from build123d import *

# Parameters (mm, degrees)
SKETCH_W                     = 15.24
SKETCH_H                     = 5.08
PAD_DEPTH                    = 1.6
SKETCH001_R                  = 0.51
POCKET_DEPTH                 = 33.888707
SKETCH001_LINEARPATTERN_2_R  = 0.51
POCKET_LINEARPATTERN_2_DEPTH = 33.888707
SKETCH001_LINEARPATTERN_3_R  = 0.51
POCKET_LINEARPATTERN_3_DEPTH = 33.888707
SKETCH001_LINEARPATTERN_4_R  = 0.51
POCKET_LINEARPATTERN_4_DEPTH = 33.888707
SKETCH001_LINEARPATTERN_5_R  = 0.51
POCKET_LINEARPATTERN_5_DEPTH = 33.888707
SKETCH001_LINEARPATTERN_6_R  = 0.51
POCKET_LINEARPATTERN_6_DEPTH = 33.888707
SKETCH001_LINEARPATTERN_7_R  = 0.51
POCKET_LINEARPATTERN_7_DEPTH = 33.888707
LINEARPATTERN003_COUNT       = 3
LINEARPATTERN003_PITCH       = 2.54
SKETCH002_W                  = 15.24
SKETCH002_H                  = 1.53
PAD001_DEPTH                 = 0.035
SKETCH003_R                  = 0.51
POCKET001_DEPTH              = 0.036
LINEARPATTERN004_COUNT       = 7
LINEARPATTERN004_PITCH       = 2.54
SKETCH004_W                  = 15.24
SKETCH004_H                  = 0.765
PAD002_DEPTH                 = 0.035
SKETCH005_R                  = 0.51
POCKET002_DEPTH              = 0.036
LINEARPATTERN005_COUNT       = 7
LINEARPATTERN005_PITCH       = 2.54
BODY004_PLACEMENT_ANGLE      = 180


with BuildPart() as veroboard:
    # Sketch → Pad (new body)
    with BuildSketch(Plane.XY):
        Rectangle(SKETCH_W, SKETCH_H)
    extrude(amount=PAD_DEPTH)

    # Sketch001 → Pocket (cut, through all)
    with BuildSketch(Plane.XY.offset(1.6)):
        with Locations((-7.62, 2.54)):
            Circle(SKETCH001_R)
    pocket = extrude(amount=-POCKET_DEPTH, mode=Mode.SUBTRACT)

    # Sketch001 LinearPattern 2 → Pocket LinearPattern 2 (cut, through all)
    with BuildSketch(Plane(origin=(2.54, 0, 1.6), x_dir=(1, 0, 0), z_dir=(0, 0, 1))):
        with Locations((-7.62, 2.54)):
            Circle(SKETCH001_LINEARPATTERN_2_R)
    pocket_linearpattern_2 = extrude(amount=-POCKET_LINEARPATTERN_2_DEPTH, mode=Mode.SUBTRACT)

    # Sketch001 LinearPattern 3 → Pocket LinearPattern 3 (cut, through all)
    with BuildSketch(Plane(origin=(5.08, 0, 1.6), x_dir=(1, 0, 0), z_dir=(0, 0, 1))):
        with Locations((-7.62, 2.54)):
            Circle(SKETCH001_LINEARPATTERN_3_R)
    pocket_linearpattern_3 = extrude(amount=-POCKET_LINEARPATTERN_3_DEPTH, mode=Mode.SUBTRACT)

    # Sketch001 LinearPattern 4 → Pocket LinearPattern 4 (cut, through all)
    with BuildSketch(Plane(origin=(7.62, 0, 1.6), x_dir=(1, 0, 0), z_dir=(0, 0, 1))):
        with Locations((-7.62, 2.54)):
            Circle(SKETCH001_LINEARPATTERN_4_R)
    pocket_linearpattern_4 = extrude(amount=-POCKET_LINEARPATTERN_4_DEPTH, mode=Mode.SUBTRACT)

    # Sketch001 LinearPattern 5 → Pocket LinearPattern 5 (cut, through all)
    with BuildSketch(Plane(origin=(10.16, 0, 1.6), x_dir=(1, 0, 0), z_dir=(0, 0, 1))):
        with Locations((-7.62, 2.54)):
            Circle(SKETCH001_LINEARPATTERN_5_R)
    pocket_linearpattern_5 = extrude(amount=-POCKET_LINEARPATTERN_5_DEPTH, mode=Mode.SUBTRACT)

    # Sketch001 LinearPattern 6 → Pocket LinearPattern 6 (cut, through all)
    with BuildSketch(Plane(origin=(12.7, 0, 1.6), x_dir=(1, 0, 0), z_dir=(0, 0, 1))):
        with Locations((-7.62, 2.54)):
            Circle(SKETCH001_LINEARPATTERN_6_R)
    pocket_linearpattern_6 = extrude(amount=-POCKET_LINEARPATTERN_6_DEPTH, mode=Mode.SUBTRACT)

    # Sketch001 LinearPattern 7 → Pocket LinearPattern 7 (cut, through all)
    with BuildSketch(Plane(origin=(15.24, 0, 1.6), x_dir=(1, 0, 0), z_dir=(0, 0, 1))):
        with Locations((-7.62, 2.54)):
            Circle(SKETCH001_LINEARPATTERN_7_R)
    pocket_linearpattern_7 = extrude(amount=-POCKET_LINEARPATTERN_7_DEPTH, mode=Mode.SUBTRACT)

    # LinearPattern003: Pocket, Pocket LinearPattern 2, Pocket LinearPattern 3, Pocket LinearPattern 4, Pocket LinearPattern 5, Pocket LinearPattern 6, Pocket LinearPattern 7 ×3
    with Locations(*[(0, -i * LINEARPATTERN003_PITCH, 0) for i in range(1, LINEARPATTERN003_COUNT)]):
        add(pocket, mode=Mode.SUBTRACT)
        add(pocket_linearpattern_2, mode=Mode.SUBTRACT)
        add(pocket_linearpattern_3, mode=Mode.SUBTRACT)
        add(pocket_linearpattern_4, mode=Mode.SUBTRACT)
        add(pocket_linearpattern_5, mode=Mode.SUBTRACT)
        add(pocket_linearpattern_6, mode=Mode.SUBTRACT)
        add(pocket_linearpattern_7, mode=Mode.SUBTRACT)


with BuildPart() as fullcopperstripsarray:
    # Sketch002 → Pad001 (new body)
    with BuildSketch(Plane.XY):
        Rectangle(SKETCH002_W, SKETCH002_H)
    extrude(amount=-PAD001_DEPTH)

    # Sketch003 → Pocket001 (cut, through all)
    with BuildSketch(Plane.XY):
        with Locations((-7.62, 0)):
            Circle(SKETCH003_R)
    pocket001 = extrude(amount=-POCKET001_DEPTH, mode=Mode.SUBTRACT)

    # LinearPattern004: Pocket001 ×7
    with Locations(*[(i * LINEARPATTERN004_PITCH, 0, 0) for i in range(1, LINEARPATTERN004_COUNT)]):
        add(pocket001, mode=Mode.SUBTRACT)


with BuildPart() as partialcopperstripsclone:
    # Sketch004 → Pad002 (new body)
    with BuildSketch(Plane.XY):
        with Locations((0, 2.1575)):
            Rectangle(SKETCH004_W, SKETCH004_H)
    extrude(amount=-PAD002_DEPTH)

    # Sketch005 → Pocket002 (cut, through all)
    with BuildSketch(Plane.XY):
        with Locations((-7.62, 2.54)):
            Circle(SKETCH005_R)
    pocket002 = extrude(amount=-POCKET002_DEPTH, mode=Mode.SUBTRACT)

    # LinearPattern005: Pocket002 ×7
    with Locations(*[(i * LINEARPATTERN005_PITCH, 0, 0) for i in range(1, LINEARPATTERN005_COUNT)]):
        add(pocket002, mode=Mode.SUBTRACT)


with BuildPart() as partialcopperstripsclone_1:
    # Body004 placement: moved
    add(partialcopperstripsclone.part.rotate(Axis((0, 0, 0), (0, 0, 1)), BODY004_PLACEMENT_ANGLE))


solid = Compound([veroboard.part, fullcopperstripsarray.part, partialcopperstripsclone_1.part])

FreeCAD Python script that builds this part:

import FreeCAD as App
import Part
import Sketcher

V = App.Vector
Q = App.Units.Quantity


def add_polygon(sketch, points):
    """Adds a closed chain of lines whose ends are joined by coincident constraints."""
    first, n = sketch.GeometryCount, len(points)
    for a, b in zip(points, points[1:] + points[:1]):
        sketch.addGeometry(Part.LineSegment(App.Vector(*a, 0), App.Vector(*b, 0)), False)
    for i in range(n):
        sketch.addConstraint(Sketcher.Constraint("Coincident", first + i, 2, first + (i + 1) % n, 1))

doc = App.newDocument("Part")
params = doc.addObject("Spreadsheet::Sheet", "Params")
for row, (alias, value) in enumerate([
    ("sketch1_width", "0.6 in"),
    ("sketch1_height", "0.2 in"),
    ("pad1_length", "1.6 mm"),
    ("linearpattern_pitch", "0.1 in"),
    ("sketch9_width", "0.6 in"),
    ("pad2_length", "0.035 mm"),
    ("linearpattern2_pitch", "0.1 in"),
    ("sketch11_width", "0.6 in"),
    ("pad3_length", "0.035 mm"),
    ("linearpattern3_pitch", "0.1 in"),
], start=1):
    params.set(f"A{row}", alias)
    params.set(f"B{row}", "=" + value)
    params.setAlias(f"B{row}", alias)

body = doc.addObject("PartDesign::Body", "Body")

sketch1 = body.newObject("Sketcher::SketchObject", "Sketch")
sketch1.AttachmentSupport = (doc.getObject("XY_Plane"), [""])
sketch1.MapMode = "FlatFace"
add_polygon(sketch1, [(-7.62, 2.54), (-7.62, -2.54), (7.62, -2.54), (7.62, 2.54)])
sketch1.addConstraint([
    Sketcher.Constraint("Vertical", 0),
    Sketcher.Constraint("Horizontal", 1),
    Sketcher.Constraint("Vertical", 2),
    Sketcher.Constraint("Horizontal", 3),
    Sketcher.Constraint("Symmetric", 0, 2, 2, 2, -1, 1),
    Sketcher.Constraint("DistanceX", 1, 1, 1, 2, Q("0.6 in")),
    Sketcher.Constraint("DistanceY", 0, 2, 0, 1, Q("0.2 in")),
])
sketch1.setExpression("Constraints[9]", "Params.sketch1_width")
sketch1.setExpression("Constraints[10]", "Params.sketch1_height")
pad1 = body.newObject("PartDesign::Pad", "Pad")
pad1.Profile = sketch1
pad1.setExpression("Length", "Params.pad1_length")

sketch2 = body.newObject("Sketcher::SketchObject", "Sketch001")
sketch2.AttachmentSupport = (doc.getObject("XY_Plane"), [""])
sketch2.MapMode = "FlatFace"
sketch2.AttachmentOffset = App.Placement(V(0, 0, 1.6), App.Rotation())
sketch2.addGeometry(Part.Circle(V(-7.62, 2.54, 0), V(0, 0, 1), 0.51), False)
sketch2.addConstraint([
    Sketcher.Constraint("DistanceX", 0, 3, -1, 1, Q("0.3 in")),
    Sketcher.Constraint("DistanceY", -1, 1, 0, 3, Q("0.1 in")),
    Sketcher.Constraint("Diameter", 0, Q("1.02 mm")),
])
pocket1 = body.newObject("PartDesign::Pocket", "Pocket")
pocket1.Profile = sketch2
pocket1.Type = "ThroughAll"

sketch3 = body.newObject("Sketcher::SketchObject", "Sketch002")
sketch3.AttachmentSupport = (doc.getObject("XY_Plane"), [""])
sketch3.MapMode = "FlatFace"
sketch3.AttachmentOffset = App.Placement(V(0, 0, 1.6), App.Rotation())
sketch3.addGeometry(Part.Circle(V(-5.08, 2.54, 0), V(0, 0, 1), 0.51), False)
sketch3.addConstraint([
    Sketcher.Constraint("DistanceX", 0, 3, -1, 1, Q("0.2 in")),
    Sketcher.Constraint("DistanceY", -1, 1, 0, 3, Q("0.1 in")),
    Sketcher.Constraint("Diameter", 0, Q("1.02 mm")),
])
pocket2 = body.newObject("PartDesign::Pocket", "Pocket001")
pocket2.Profile = sketch3
pocket2.Type = "ThroughAll"

sketch4 = body.newObject("Sketcher::SketchObject", "Sketch003")
sketch4.AttachmentSupport = (doc.getObject("XY_Plane"), [""])
sketch4.MapMode = "FlatFace"
sketch4.AttachmentOffset = App.Placement(V(0, 0, 1.6), App.Rotation())
sketch4.addGeometry(Part.Circle(V(-2.54, 2.54, 0), V(0, 0, 1), 0.51), False)
sketch4.addConstraint([
    Sketcher.Constraint("DistanceX", 0, 3, -1, 1, Q("0.1 in")),
    Sketcher.Constraint("DistanceY", -1, 1, 0, 3, Q("0.1 in")),
    Sketcher.Constraint("Diameter", 0, Q("1.02 mm")),
])
pocket3 = body.newObject("PartDesign::Pocket", "Pocket002")
pocket3.Profile = sketch4
pocket3.Type = "ThroughAll"

sketch5 = body.newObject("Sketcher::SketchObject", "Sketch004")
sketch5.AttachmentSupport = (doc.getObject("XY_Plane"), [""])
sketch5.MapMode = "FlatFace"
sketch5.AttachmentOffset = App.Placement(V(0, 0, 1.6), App.Rotation())
sketch5.addGeometry(Part.Circle(V(0, 2.54, 0), V(0, 0, 1), 0.51), False)
sketch5.addConstraint([
    Sketcher.Constraint("PointOnObject", 0, 3, -2),
    Sketcher.Constraint("DistanceY", -1, 1, 0, 3, Q("0.1 in")),
    Sketcher.Constraint("Diameter", 0, Q("1.02 mm")),
])
pocket4 = body.newObject("PartDesign::Pocket", "Pocket003")
pocket4.Profile = sketch5
pocket4.Type = "ThroughAll"

sketch6 = body.newObject("Sketcher::SketchObject", "Sketch005")
sketch6.AttachmentSupport = (doc.getObject("XY_Plane"), [""])
sketch6.MapMode = "FlatFace"
sketch6.AttachmentOffset = App.Placement(V(0, 0, 1.6), App.Rotation())
sketch6.addGeometry(Part.Circle(V(2.54, 2.54, 0), V(0, 0, 1), 0.51), False)
sketch6.addConstraint([
    Sketcher.Constraint("DistanceX", -1, 1, 0, 3, Q("0.1 in")),
    Sketcher.Constraint("DistanceY", -1, 1, 0, 3, Q("0.1 in")),
    Sketcher.Constraint("Diameter", 0, Q("1.02 mm")),
])
pocket5 = body.newObject("PartDesign::Pocket", "Pocket004")
pocket5.Profile = sketch6
pocket5.Type = "ThroughAll"

sketch7 = body.newObject("Sketcher::SketchObject", "Sketch006")
sketch7.AttachmentSupport = (doc.getObject("XY_Plane"), [""])
sketch7.MapMode = "FlatFace"
sketch7.AttachmentOffset = App.Placement(V(0, 0, 1.6), App.Rotation())
sketch7.addGeometry(Part.Circle(V(5.08, 2.54, 0), V(0, 0, 1), 0.51), False)
sketch7.addConstraint([
    Sketcher.Constraint("DistanceX", -1, 1, 0, 3, Q("0.2 in")),
    Sketcher.Constraint("DistanceY", -1, 1, 0, 3, Q("0.1 in")),
    Sketcher.Constraint("Diameter", 0, Q("1.02 mm")),
])
pocket6 = body.newObject("PartDesign::Pocket", "Pocket005")
pocket6.Profile = sketch7
pocket6.Type = "ThroughAll"

sketch8 = body.newObject("Sketcher::SketchObject", "Sketch007")
sketch8.AttachmentSupport = (doc.getObject("XY_Plane"), [""])
sketch8.MapMode = "FlatFace"
sketch8.AttachmentOffset = App.Placement(V(0, 0, 1.6), App.Rotation())
sketch8.addGeometry(Part.Circle(V(7.62, 2.54, 0), V(0, 0, 1), 0.51), False)
sketch8.addConstraint([
    Sketcher.Constraint("DistanceX", -1, 1, 0, 3, Q("0.3 in")),
    Sketcher.Constraint("DistanceY", -1, 1, 0, 3, Q("0.1 in")),
    Sketcher.Constraint("Diameter", 0, Q("1.02 mm")),
])
pocket7 = body.newObject("PartDesign::Pocket", "Pocket006")
pocket7.Profile = sketch8
pocket7.Type = "ThroughAll"
doc.recompute()

linearpattern = body.newObject("PartDesign::LinearPattern", "LinearPattern")
linearpattern.Originals = [pocket1, pocket2, pocket3, pocket4, pocket5, pocket6, pocket7]
linearpattern.Direction = (doc.getObject("Y_Axis"), [""])
linearpattern.Mode = "offset"
linearpattern.setExpression("Offset", "Params.linearpattern_pitch")
linearpattern.Occurrences = 3
linearpattern.Reversed = True
body.Tip = linearpattern
body2 = doc.addObject("PartDesign::Body", "Body001")

sketch9 = body2.newObject("Sketcher::SketchObject", "Sketch008")
sketch9.AttachmentSupport = (doc.getObject("XY_Plane001"), [""])
sketch9.MapMode = "FlatFace"
add_polygon(sketch9, [(-7.62, 0.765), (-7.62, -0.765), (7.62, -0.765), (7.62, 0.765)])
sketch9.addConstraint([
    Sketcher.Constraint("Vertical", 0),
    Sketcher.Constraint("Horizontal", 1),
    Sketcher.Constraint("Vertical", 2),
    Sketcher.Constraint("Horizontal", 3),
    Sketcher.Constraint("Symmetric", 0, 2, 2, 2, -1, 1),
    Sketcher.Constraint("DistanceX", 1, 1, 1, 2, Q("0.6 in")),
    Sketcher.Constraint("DistanceY", 0, 2, 0, 1, Q("1.53 mm")),
])
sketch9.setExpression("Constraints[9]", "Params.sketch9_width")
pad2 = body2.newObject("PartDesign::Pad", "Pad001")
pad2.Profile = sketch9
pad2.setExpression("Length", "Params.pad2_length")
pad2.Reversed = True

sketch10 = body2.newObject("Sketcher::SketchObject", "Sketch009")
sketch10.AttachmentSupport = (doc.getObject("XY_Plane001"), [""])
sketch10.MapMode = "FlatFace"
sketch10.addGeometry(Part.Circle(V(-7.62, 0, 0), V(0, 0, 1), 0.51), False)
sketch10.addConstraint([
    Sketcher.Constraint("PointOnObject", 0, 3, -1),
    Sketcher.Constraint("DistanceX", 0, 3, -1, 1, Q("0.3 in")),
    Sketcher.Constraint("Diameter", 0, Q("1.02 mm")),
])
pocket8 = body2.newObject("PartDesign::Pocket", "Pocket007")
pocket8.Profile = sketch10
pocket8.Type = "ThroughAll"
doc.recompute()

linearpattern2 = body2.newObject("PartDesign::LinearPattern", "LinearPattern001")
linearpattern2.Originals = [pocket8]
linearpattern2.Direction = (doc.getObject("X_Axis001"), [""])
linearpattern2.Mode = "offset"
linearpattern2.setExpression("Offset", "Params.linearpattern2_pitch")
linearpattern2.Occurrences = 7
body2.Tip = linearpattern2
body3 = doc.addObject("PartDesign::Body", "Body002")

sketch11 = body3.newObject("Sketcher::SketchObject", "Sketch010")
sketch11.AttachmentSupport = (doc.getObject("XY_Plane002"), [""])
sketch11.MapMode = "FlatFace"
add_polygon(sketch11, [(-7.62, 2.54), (-7.62, 1.775), (7.62, 1.775), (7.62, 2.54)])
sketch11.addConstraint([
    Sketcher.Constraint("Vertical", 0),
    Sketcher.Constraint("Horizontal", 1),
    Sketcher.Constraint("Vertical", 2),
    Sketcher.Constraint("Horizontal", 3),
    Sketcher.Constraint("DistanceX", 1, 1, 1, 2, Q("0.6 in")),
    Sketcher.Constraint("DistanceX", 0, 2, -1, 1, Q("0.3 in")),
    Sketcher.Constraint("DistanceY", -1, 1, 2, 2, Q("0.1 in")),
    Sketcher.Constraint("DistanceY", 0, 2, 0, 1, Q("0.765 mm")),
])
sketch11.setExpression("Constraints[8]", "Params.sketch11_width")
pad3 = body3.newObject("PartDesign::Pad", "Pad002")
pad3.Profile = sketch11
pad3.setExpression("Length", "Params.pad3_length")
pad3.Reversed = True

sketch12 = body3.newObject("Sketcher::SketchObject", "Sketch011")
sketch12.AttachmentSupport = (doc.getObject("XY_Plane002"), [""])
sketch12.MapMode = "FlatFace"
sketch12.addGeometry(Part.Circle(V(-7.62, 2.54, 0), V(0, 0, 1), 0.51), False)
sketch12.addConstraint([
    Sketcher.Constraint("DistanceX", 0, 3, -1, 1, Q("0.3 in")),
    Sketcher.Constraint("DistanceY", -1, 1, 0, 3, Q("0.1 in")),
    Sketcher.Constraint("Diameter", 0, Q("1.02 mm")),
])
pocket9 = body3.newObject("PartDesign::Pocket", "Pocket008")
pocket9.Profile = sketch12
pocket9.Type = "ThroughAll"
doc.recompute()

linearpattern3 = body3.newObject("PartDesign::LinearPattern", "LinearPattern002")
linearpattern3.Originals = [pocket9]
linearpattern3.Direction = (doc.getObject("X_Axis002"), [""])
linearpattern3.Mode = "offset"
linearpattern3.setExpression("Offset", "Params.linearpattern3_pitch")
linearpattern3.Occurrences = 7
body3.Tip = linearpattern3
body4 = doc.addObject("PartDesign::Body", "Body003")
doc.recompute()

body3.Placement = App.Placement(V(0, 0, 0), App.Rotation(V(0, 0, 1), 180))
boolean = body4.newObject("PartDesign::Boolean", "Boolean")
boolean.Type = "Fuse"
boolean.addObjects([body3])

doc.recompute()
